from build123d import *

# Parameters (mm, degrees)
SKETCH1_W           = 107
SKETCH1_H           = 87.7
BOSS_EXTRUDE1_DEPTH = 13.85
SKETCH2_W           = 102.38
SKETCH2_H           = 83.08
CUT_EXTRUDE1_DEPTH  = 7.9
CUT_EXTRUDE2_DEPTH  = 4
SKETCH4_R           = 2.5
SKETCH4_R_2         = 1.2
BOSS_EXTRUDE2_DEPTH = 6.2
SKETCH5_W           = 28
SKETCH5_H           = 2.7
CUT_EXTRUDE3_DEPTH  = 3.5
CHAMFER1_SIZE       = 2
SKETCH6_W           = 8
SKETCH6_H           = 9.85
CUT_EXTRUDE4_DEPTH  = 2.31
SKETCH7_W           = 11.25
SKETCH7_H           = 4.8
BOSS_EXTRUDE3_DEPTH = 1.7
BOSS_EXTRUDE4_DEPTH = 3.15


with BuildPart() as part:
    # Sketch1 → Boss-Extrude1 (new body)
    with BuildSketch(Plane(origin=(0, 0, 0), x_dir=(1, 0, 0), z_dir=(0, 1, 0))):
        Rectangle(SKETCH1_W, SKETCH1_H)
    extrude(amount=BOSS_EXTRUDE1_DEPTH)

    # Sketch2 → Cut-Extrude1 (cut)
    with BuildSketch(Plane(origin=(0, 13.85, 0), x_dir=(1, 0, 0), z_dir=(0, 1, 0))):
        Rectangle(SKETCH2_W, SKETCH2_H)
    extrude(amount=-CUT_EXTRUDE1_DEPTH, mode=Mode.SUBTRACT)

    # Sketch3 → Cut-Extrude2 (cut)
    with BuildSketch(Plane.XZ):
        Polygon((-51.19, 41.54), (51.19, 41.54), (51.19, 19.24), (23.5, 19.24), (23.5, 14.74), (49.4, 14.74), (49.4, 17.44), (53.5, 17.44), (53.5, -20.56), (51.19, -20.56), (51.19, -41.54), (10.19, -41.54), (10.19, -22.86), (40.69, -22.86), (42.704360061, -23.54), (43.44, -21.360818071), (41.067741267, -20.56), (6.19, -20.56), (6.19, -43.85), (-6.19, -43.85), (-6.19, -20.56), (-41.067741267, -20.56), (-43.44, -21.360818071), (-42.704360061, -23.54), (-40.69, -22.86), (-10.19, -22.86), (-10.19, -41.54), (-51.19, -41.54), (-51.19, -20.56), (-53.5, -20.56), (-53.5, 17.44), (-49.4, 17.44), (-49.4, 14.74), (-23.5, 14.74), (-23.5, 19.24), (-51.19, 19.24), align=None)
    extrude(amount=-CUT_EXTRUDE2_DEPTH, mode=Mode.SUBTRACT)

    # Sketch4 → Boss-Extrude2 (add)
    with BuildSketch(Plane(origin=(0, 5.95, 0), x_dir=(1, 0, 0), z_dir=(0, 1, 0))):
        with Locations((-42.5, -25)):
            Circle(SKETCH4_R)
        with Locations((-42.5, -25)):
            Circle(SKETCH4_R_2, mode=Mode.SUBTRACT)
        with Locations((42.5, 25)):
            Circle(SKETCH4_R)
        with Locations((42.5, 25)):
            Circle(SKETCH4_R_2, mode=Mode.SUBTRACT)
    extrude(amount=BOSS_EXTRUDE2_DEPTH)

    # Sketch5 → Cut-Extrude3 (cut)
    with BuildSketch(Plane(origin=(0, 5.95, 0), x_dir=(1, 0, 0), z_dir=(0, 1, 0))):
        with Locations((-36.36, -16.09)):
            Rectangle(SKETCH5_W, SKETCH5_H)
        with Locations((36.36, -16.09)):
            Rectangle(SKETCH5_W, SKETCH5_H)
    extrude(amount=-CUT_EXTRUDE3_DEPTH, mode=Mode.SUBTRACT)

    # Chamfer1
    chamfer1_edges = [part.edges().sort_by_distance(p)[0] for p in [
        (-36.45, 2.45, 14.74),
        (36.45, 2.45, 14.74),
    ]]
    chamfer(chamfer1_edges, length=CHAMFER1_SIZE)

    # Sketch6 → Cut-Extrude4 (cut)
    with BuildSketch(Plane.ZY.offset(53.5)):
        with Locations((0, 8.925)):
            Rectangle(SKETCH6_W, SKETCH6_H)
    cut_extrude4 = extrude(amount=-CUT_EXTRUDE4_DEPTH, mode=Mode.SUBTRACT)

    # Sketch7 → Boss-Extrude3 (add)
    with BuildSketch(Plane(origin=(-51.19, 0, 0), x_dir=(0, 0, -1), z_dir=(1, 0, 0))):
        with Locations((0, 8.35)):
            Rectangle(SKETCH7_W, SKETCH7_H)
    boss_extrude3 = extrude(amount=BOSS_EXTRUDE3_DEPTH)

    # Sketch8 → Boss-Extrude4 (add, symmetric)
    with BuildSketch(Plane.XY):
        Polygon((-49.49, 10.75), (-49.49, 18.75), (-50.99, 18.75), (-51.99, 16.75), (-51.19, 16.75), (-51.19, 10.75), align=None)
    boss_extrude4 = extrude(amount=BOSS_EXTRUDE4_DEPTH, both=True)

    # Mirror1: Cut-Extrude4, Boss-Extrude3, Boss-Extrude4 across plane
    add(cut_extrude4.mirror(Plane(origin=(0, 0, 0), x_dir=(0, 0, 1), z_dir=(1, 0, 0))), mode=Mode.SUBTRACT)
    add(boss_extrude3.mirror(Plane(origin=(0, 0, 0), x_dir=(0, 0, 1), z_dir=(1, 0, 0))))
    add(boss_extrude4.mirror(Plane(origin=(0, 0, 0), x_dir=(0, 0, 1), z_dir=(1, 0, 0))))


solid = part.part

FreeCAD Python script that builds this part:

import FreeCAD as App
import Part
import Sketcher

V = App.Vector


def edges_at(feature, points):
    """Names of the edges that pass closest to the given points."""
    edges = feature.Shape.Edges
    near = lambda p: min(range(len(edges)), key=lambda i: edges[i].distToShape(Part.Vertex(*p))[0])
    return sorted({f"Edge{near(p) + 1}" for p in points})

doc = App.newDocument("Part")
params = doc.addObject("Spreadsheet::Sheet", "Params")
for row, (alias, value) in enumerate([
    ("sketch1_width", "107 mm"),
    ("sketch1_height", "87.7 mm"),
    ("pad1_length", "13.85 mm"),
    ("sketch2_width", "102.38 mm"),
    ("sketch2_height", "83.08 mm"),
    ("pocket1_length", "7.9 mm"),
    ("sketch3_width", "41 mm"),
    ("sketch3_height", "38 mm"),
    ("sketch3_width2", "25.9 mm"),
    ("sketch3_width3", "4.1 mm"),
    ("sketch3_width4", "30.5 mm"),
    ("pocket2_length", "4 mm"),
    ("sketch4_diameter", "5 mm"),
    ("sketch4_diameter2", "2.4 mm"),
    ("pad2_length", "6.2 mm"),
    ("sketch5_width", "28 mm"),
    ("sketch5_height", "2.7 mm"),
    ("pocket3_length", "3.5 mm"),
    ("chamfer_size", "2 mm"),
    ("sketch6_height", "8 mm"),
    ("sketch6_width", "9.85 mm"),
    ("pocket4_length", "2.31 mm"),
    ("sketch7_width", "4.8 mm"),
    ("sketch7_height", "11.25 mm"),
    ("pad3_length", "1.7 mm"),
    ("sketch8_height", "8 mm"),
    ("sketch8_height2", "6 mm"),
    ("sketch8_width", "1.5 mm"),
    ("sketch8_width2", "0.8 mm"),
    ("sketch8_width3", "1.7 mm"),
    ("pad4_length", "6.3 mm"),
], start=1):
    params.set(f"A{row}", alias)
    params.set(f"B{row}", "=" + value)
    params.setAlias(f"B{row}", alias)

body = doc.addObject("PartDesign::Body", "Body")

# Sketch on XZ plane
sketch1 = body.newObject("Sketcher::SketchObject", "Sketch")
sketch1.AttachmentSupport = (doc.getObject("XZ_Plane"), [""])
sketch1.MapMode = "FlatFace"
sketch1.addGeometry([
    Part.LineSegment(V(-53.5, -43.85, 0), V(-53.5, 43.85, 0)),
    Part.LineSegment(V(-53.5, 43.85, 0), V(53.5, 43.85, 0)),
    Part.LineSegment(V(53.5, 43.85, 0), V(53.5, -43.85, 0)),
    Part.LineSegment(V(53.5, -43.85, 0), V(-53.5, -43.85, 0)),
], False)
sketch1.addConstraint([
    Sketcher.Constraint("Coincident", 0, 2, 1, 1),
    Sketcher.Constraint("Coincident", 1, 2, 2, 1),
    Sketcher.Constraint("Coincident", 2, 2, 3, 1),
    Sketcher.Constraint("Coincident", 3, 2, 0, 1),
    Sketcher.Constraint("Vertical", 0),
    Sketcher.Constraint("Horizontal", 1),
    Sketcher.Constraint("Vertical", 2),
    Sketcher.Constraint("Horizontal", 3),
    Sketcher.Constraint("Symmetric", 0, 2, 2, 2, -1, 1),
    Sketcher.Constraint("DistanceX", 1, 1, 1, 2, 107.0),
    Sketcher.Constraint("DistanceY", 0, 1, 0, 2, 87.7),
])
sketch1.setExpression("Constraints[9]", "Params.sketch1_width")
sketch1.setExpression("Constraints[10]", "Params.sketch1_height")
pad1 = body.newObject("PartDesign::Pad", "Pad")
pad1.Profile = sketch1
pad1.setExpression("Length", "Params.pad1_length")
pad1.Reversed = True

# Sketch on XZ plane
sketch2 = body.newObject("Sketcher::SketchObject", "Sketch001")
sketch2.AttachmentSupport = (doc.getObject("XZ_Plane"), [""])
sketch2.MapMode = "FlatFace"
sketch2.AttachmentOffset = App.Placement(V(0, 0, -13.85), App.Rotation())
sketch2.addGeometry([
    Part.LineSegment(V(-51.19, -41.54, 0), V(-51.19, 41.54, 0)),
    Part.LineSegment(V(-51.19, 41.54, 0), V(51.19, 41.54, 0)),
    Part.LineSegment(V(51.19, 41.54, 0), V(51.19, -41.54, 0)),
    Part.LineSegment(V(51.19, -41.54, 0), V(-51.19, -41.54, 0)),
], False)
sketch2.addConstraint([
    Sketcher.Constraint("Coincident", 0, 2, 1, 1),
    Sketcher.Constraint("Coincident", 1, 2, 2, 1),
    Sketcher.Constraint("Coincident", 2, 2, 3, 1),
    Sketcher.Constraint("Coincident", 3, 2, 0, 1),
    Sketcher.Constraint("Vertical", 0),
    Sketcher.Constraint("Horizontal", 1),
    Sketcher.Constraint("Vertical", 2),
    Sketcher.Constraint("Horizontal", 3),
    Sketcher.Constraint("Symmetric", 0, 2, 2, 2, -1, 1),
    Sketcher.Constraint("DistanceX", 1, 1, 1, 2, 102.38),
    Sketcher.Constraint("DistanceY", 0, 1, 0, 2, 83.08),
])
sketch2.setExpression("Constraints[9]", "Params.sketch2_width")
sketch2.setExpression("Constraints[10]", "Params.sketch2_height")
pocket1 = body.newObject("PartDesign::Pocket", "Pocket")
pocket1.Profile = sketch2
pocket1.setExpression("Length", "Params.pocket1_length")
pocket1.Reversed = True

# Sketch on XZ plane
sketch3 = body.newObject("Sketcher::SketchObject", "Sketch002")
sketch3.AttachmentSupport = (doc.getObject("XZ_Plane"), [""])
sketch3.MapMode = "FlatFace"
sketch3.addGeometry([
    Part.LineSegment(V(51.19, 41.54, 0), V(-51.19, 41.54, 0)),  # 0
    Part.LineSegment(V(-51.19, 41.54, 0), V(-51.19, 19.24, 0)),  # 1
    Part.LineSegment(V(-51.19, 19.24, 0), V(-23.5, 19.24, 0)),  # 2
    Part.LineSegment(V(-23.5, 19.24, 0), V(-23.5, 14.74, 0)),  # 3
    Part.LineSegment(V(-23.5, 14.74, 0), V(-49.4, 14.74, 0)),  # 4
    Part.LineSegment(V(-49.4, 14.74, 0), V(-49.4, 17.44, 0)),  # 5
    Part.LineSegment(V(-49.4, 17.44, 0), V(-53.5, 17.44, 0)),  # 6
    Part.LineSegment(V(-53.5, 17.44, 0), V(-53.5, -20.56, 0)),  # 7
    Part.LineSegment(V(-53.5, -20.56, 0), V(-51.19, -20.56, 0)),  # 8
    Part.LineSegment(V(-51.19, -20.56, 0), V(-51.19, -41.54, 0)),  # 9
    Part.LineSegment(V(-51.19, -41.54, 0), V(-10.19, -41.54, 0)),  # 10
    Part.LineSegment(V(-10.19, -41.54, 0), V(-10.19, -22.86, 0)),  # 11
    Part.LineSegment(V(-10.19, -22.86, 0), V(-40.69, -22.86, 0)),  # 12
    Part.LineSegment(V(-40.69, -22.86, 0), V(-42.70436, -23.54, 0)),  # 13
    Part.LineSegment(V(-42.70436, -23.54, 0), V(-43.44, -21.360818, 0)),  # 14
    Part.LineSegment(V(-43.44, -21.360818, 0), V(-41.067741, -20.56, 0)),  # 15
    Part.LineSegment(V(-41.067741, -20.56, 0), V(-6.19, -20.56, 0)),  # 16
    Part.LineSegment(V(-6.19, -20.56, 0), V(-6.19, -43.85, 0)),  # 17
    Part.LineSegment(V(-6.19, -43.85, 0), V(6.19, -43.85, 0)),  # 18
    Part.LineSegment(V(6.19, -43.85, 0), V(6.19, -20.56, 0)),  # 19
    Part.LineSegment(V(6.19, -20.56, 0), V(41.067741, -20.56, 0)),  # 20
    Part.LineSegment(V(41.067741, -20.56, 0), V(43.44, -21.360818, 0)),  # 21
    Part.LineSegment(V(43.44, -21.360818, 0), V(42.70436, -23.54, 0)),  # 22
    Part.LineSegment(V(42.70436, -23.54, 0), V(40.69, -22.86, 0)),  # 23
    Part.LineSegment(V(40.69, -22.86, 0), V(10.19, -22.86, 0)),  # 24
    Part.LineSegment(V(10.19, -22.86, 0), V(10.19, -41.54, 0)),  # 25
    Part.LineSegment(V(10.19, -41.54, 0), V(51.19, -41.54, 0)),  # 26
    Part.LineSegment(V(51.19, -41.54, 0), V(51.19, -20.56, 0)),  # 27
    Part.LineSegment(V(51.19, -20.56, 0), V(53.5, -20.56, 0)),  # 28
    Part.LineSegment(V(53.5, -20.56, 0), V(53.5, 17.44, 0)),  # 29
    Part.LineSegment(V(53.5, 17.44, 0), V(49.4, 17.44, 0)),  # 30
    Part.LineSegment(V(49.4, 17.44, 0), V(49.4, 14.74, 0)),  # 31
    Part.LineSegment(V(49.4, 14.74, 0), V(23.5, 14.74, 0)),  # 32
    Part.LineSegment(V(23.5, 14.74, 0), V(23.5, 19.24, 0)),  # 33
    Part.LineSegment(V(23.5, 19.24, 0), V(51.19, 19.24, 0)),  # 34
    Part.LineSegment(V(51.19, 19.24, 0), V(51.19, 41.54, 0)),  # 35
], False)
sketch3.addConstraint([
    Sketcher.Constraint("Coincident", 0, 2, 1, 1),
    Sketcher.Constraint("Coincident", 1, 2, 2, 1),
    Sketcher.Constraint("Coincident", 2, 2, 3, 1),
    Sketcher.Constraint("Coincident", 3, 2, 4, 1),
    Sketcher.Constraint("Coincident", 4, 2, 5, 1),
    Sketcher.Constraint("Coincident", 5, 2, 6, 1),
    Sketcher.Constraint("Coincident", 6, 2, 7, 1),
    Sketcher.Constraint("Coincident", 7, 2, 8, 1),
    Sketcher.Constraint("Coincident", 8, 2, 9, 1),
    Sketcher.Constraint("Coincident", 9, 2, 10, 1),
    Sketcher.Constraint("Coincident", 10, 2, 11, 1),
    Sketcher.Constraint("Coincident", 11, 2, 12, 1),
    Sketcher.Constraint("Coincident", 12, 2, 13, 1),
    Sketcher.Constraint("Coincident", 13, 2, 14, 1),
    Sketcher.Constraint("Coincident", 14, 2, 15, 1),
    Sketcher.Constraint("Coincident", 15, 2, 16, 1),
    Sketcher.Constraint("Coincident", 16, 2, 17, 1),
    Sketcher.Constraint("Coincident", 17, 2, 18, 1),
    Sketcher.Constraint("Coincident", 18, 2, 19, 1),
    Sketcher.Constraint("Coincident", 19, 2, 20, 1),
    Sketcher.Constraint("Coincident", 20, 2, 21, 1),
    Sketcher.Constraint("Coincident", 21, 2, 22, 1),
    Sketcher.Constraint("Coincident", 22, 2, 23, 1),
    Sketcher.Constraint("Coincident", 23, 2, 24, 1),
    Sketcher.Constraint("Coincident", 24, 2, 25, 1),
    Sketcher.Constraint("Coincident", 25, 2, 26, 1),
    Sketcher.Constraint("Coincident", 26, 2, 27, 1),
    Sketcher.Constraint("Coincident", 27, 2, 28, 1),
    Sketcher.Constraint("Coincident", 28, 2, 29, 1),
    Sketcher.Constraint("Coincident", 29, 2, 30, 1),
    Sketcher.Constraint("Coincident", 30, 2, 31, 1),
    Sketcher.Constraint("Coincident", 31, 2, 32, 1),
    Sketcher.Constraint("Coincident", 32, 2, 33, 1),
    Sketcher.Constraint("Coincident", 33, 2, 34, 1),
    Sketcher.Constraint("Coincident", 34, 2, 35, 1),
    Sketcher.Constraint("Coincident", 35, 2, 0, 1),
    Sketcher.Constraint("Horizontal", 0),
    Sketcher.Constraint("Vertical", 1),
    Sketcher.Constraint("Horizontal", 2),
    Sketcher.Constraint("Vertical", 3),
    Sketcher.Constraint("Horizontal", 4),
    Sketcher.Constraint("Vertical", 5),
    Sketcher.Constraint("Horizontal", 6),
    Sketcher.Constraint("Vertical", 7),
    Sketcher.Constraint("Horizontal", 8),
    Sketcher.Constraint("Vertical", 9),
    Sketcher.Constraint("Horizontal", 10),
    Sketcher.Constraint("Vertical", 11),
    Sketcher.Constraint("Horizontal", 12),
    Sketcher.Constraint("Horizontal", 16),
    Sketcher.Constraint("Vertical", 17),
    Sketcher.Constraint("Horizontal", 18),
    Sketcher.Constraint("Vertical", 19),
    Sketcher.Constraint("Horizontal", 20),
    Sketcher.Constraint("Horizontal", 24),
    Sketcher.Constraint("Vertical", 25),
    Sketcher.Constraint("Horizontal", 26),
    Sketcher.Constraint("Vertical", 27),
    Sketcher.Constraint("Horizontal", 28),
    Sketcher.Constraint("Vertical", 29),
    Sketcher.Constraint("Horizontal", 30),
    Sketcher.Constraint("Vertical", 31),
    Sketcher.Constraint("Horizontal", 32),
    Sketcher.Constraint("Vertical", 33),
    Sketcher.Constraint("Horizontal", 34),
    Sketcher.Constraint("Vertical", 35),
    Sketcher.Constraint("Symmetric", 0, 2, 26, 2, -1, 1),
    Sketcher.Constraint("Symmetric", 9, 2, 35, 2, -1, 1),
    Sketcher.Constraint("Symmetric", 16, 2, 19, 2, -2),
    Sketcher.Constraint("Symmetric", 14, 2, 21, 2, -2),
    Sketcher.Constraint("Symmetric", 13, 2, 22, 2, -2),
    Sketcher.Constraint("Symmetric", 12, 2, 23, 2, -2),
    Sketcher.Constraint("Symmetric", 8, 2, 27, 2, -2),
    Sketcher.Constraint("Symmetric", 6, 2, 29, 2, -2),
    Sketcher.Constraint("Symmetric", 4, 2, 31, 2, -2),
    Sketcher.Constraint("Symmetric", 2, 2, 33, 2, -2),
    Sketcher.Constraint("Perpendicular", 13, 14),
    Sketcher.Constraint("Perpendicular", 14, 15),
    Sketcher.Constraint("Perpendicular", 21, 22),
    Sketcher.Constraint("Horizontal", 8, 2, 15, 2),
    Sketcher.Constraint("Equal", 12, 24),
    Sketcher.Constraint("DistanceX", 10, 1, 10, 2, 41.0),
    Sketcher.Constraint("DistanceY", 7, 2, 7, 1, 38.0),
    Sketcher.Constraint("DistanceX", 4, 2, 4, 1, 25.9),
    Sketcher.Constraint("DistanceX", 6, 2, 6, 1, 4.1),
    Sketcher.Constraint("DistanceX", 12, 2, 12, 1, 30.5),
    Sketcher.Constraint("DistanceY", 1, 2, 1, 1, 22.3),
    Sketcher.Constraint("DistanceY", 3, 2, 3, 1, 4.5),
    Sketcher.Constraint("DistanceY", 5, 1, 5, 2, 2.7),
    Sketcher.Constraint("DistanceY", 9, 2, 13, 2, 18.0),
    Sketcher.Constraint("DistanceX", 11, 2, 16, 2, 4.0),
    Sketcher.Constraint("Distance", 14, 2.3),
    Sketcher.Constraint("DistanceX", 0, 2, 0, 1, 102.38),
    Sketcher.Constraint("DistanceX", 2, 1, 2, 2, 27.69),
    Sketcher.Constraint("DistanceY", 9, 2, 9, 1, 20.98),
    Sketcher.Constraint("DistanceY", 11, 1, 11, 2, 18.68),
    Sketcher.Constraint("DistanceY", 17, 2, 17, 1, 23.29),
    Sketcher.Constraint("DistanceX", 14, 2, -1, 1, 43.44),
])
sketch3.setExpression("Constraints[81]", "Params.sketch3_width")
sketch3.setExpression("Constraints[82]", "Params.sketch3_height")
sketch3.setExpression("Constraints[83]", "Params.sketch3_width2")
sketch3.setExpression("Constraints[84]", "Params.sketch3_width3")
sketch3.setExpression("Constraints[85]", "Params.sketch3_width4")
pocket2 = body.newObject("PartDesign::Pocket", "Pocket001")
pocket2.Profile = sketch3
pocket2.setExpression("Length", "Params.pocket2_length")

# Sketch on XZ plane
sketch4 = body.newObject("Sketcher::SketchObject", "Sketch003")
sketch4.AttachmentSupport = (doc.getObject("XZ_Plane"), [""])
sketch4.MapMode = "FlatFace"
sketch4.AttachmentOffset = App.Placement(V(0, 0, -5.95), App.Rotation())
sketch4.addGeometry([
    Part.Circle(V(-42.5, 25, 0), V(0, 0, 1), 2.5),
    Part.Circle(V(-42.5, 25, 0), V(0, 0, 1), 1.2),
    Part.Circle(V(42.5, -25, 0), V(0, 0, 1), 2.5),
    Part.Circle(V(42.5, -25, 0), V(0, 0, 1), 1.2),
], False)
sketch4.addConstraint([
    Sketcher.Constraint("Coincident", 1, 3, 0, 3),
    Sketcher.Constraint("Coincident", 3, 3, 2, 3),
    Sketcher.Constraint("Equal", 0, 2),
    Sketcher.Constraint("Equal", 1, 3),
    Sketcher.Constraint("Symmetric", 0, 3, 2, 3, -1, 1),
    Sketcher.Constraint("Diameter", 0, 5.0),
    Sketcher.Constraint("Diameter", 1, 2.4),
    Sketcher.Constraint("DistanceY", -1, 1, 0, 3, 25.0),
    Sketcher.Constraint("DistanceX", 0, 3, 2, 3, 85.0),
])
sketch4.setExpression("Constraints[5]", "Params.sketch4_diameter")
sketch4.setExpression("Constraints[6]", "Params.sketch4_diameter2")
pad2 = body.newObject("PartDesign::Pad", "Pad001")
pad2.Profile = sketch4
pad2.setExpression("Length", "Params.pad2_length")
pad2.Reversed = True

# Sketch on XZ plane
sketch5 = body.newObject("Sketcher::SketchObject", "Sketch004")
sketch5.AttachmentSupport = (doc.getObject("XZ_Plane"), [""])
sketch5.MapMode = "FlatFace"
sketch5.AttachmentOffset = App.Placement(V(0, 0, -5.95), App.Rotation())
sketch5.addGeometry([
    Part.LineSegment(V(-50.36, 14.74, 0), V(-50.36, 17.44, 0)),  # 0
    Part.LineSegment(V(-50.36, 17.44, 0), V(-22.36, 17.44, 0)),  # 1
    Part.LineSegment(V(-22.36, 17.44, 0), V(-22.36, 14.74, 0)),  # 2
    Part.LineSegment(V(-22.36, 14.74, 0), V(-50.36, 14.74, 0)),  # 3
    Part.LineSegment(V(22.36, 14.74, 0), V(22.36, 17.44, 0)),  # 4
    Part.LineSegment(V(22.36, 17.44, 0), V(50.36, 17.44, 0)),  # 5
    Part.LineSegment(V(50.36, 17.44, 0), V(50.36, 14.74, 0)),  # 6
    Part.LineSegment(V(50.36, 14.74, 0), V(22.36, 14.74, 0)),  # 7
], False)
sketch5.addConstraint([
    Sketcher.Constraint("Coincident", 0, 2, 1, 1),
    Sketcher.Constraint("Coincident", 1, 2, 2, 1),
    Sketcher.Constraint("Coincident", 2, 2, 3, 1),
    Sketcher.Constraint("Coincident", 3, 2, 0, 1),
    Sketcher.Constraint("Coincident", 4, 2, 5, 1),
    Sketcher.Constraint("Coincident", 5, 2, 6, 1),
    Sketcher.Constraint("Coincident", 6, 2, 7, 1),
    Sketcher.Constraint("Coincident", 7, 2, 4, 1),
    Sketcher.Constraint("Vertical", 0),
    Sketcher.Constraint("Horizontal", 1),
    Sketcher.Constraint("Vertical", 2),
    Sketcher.Constraint("Horizontal", 3),
    Sketcher.Constraint("Vertical", 4),
    Sketcher.Constraint("Horizontal", 5),
    Sketcher.Constraint("Vertical", 6),
    Sketcher.Constraint("Horizontal", 7),
    Sketcher.Constraint("Symmetric", 1, 2, 4, 2, -2),
    Sketcher.Constraint("Symmetric", 3, 2, 6, 2, -2),
    Sketcher.Constraint("DistanceX", 1, 1, 1, 2, 28.0),
    Sketcher.Constraint("DistanceY", 0, 1, 0, 2, 2.7),
    Sketcher.Constraint("DistanceX", 0, 2, -1, 1, 50.36),
    Sketcher.Constraint("DistanceY", -1, 1, 0, 2, 17.44),
])
sketch5.setExpression("Constraints[18]", "Params.sketch5_width")
sketch5.setExpression("Constraints[19]", "Params.sketch5_height")
pocket3 = body.newObject("PartDesign::Pocket", "Pocket002")
pocket3.Profile = sketch5
pocket3.setExpression("Length", "Params.pocket3_length")
pocket3.Reversed = True
doc.recompute()

chamfer = body.newObject("PartDesign::Chamfer", "Chamfer")
chamfer.Base = (pocket3, edges_at(pocket3, [(-36.45, 2.45, 14.74), (36.45, 2.45, 14.74)]))
chamfer.setExpression("Size", "Params.chamfer_size")

# Sketch on YZ plane
sketch6 = body.newObject("Sketcher::SketchObject", "Sketch005")
sketch6.AttachmentSupport = (doc.getObject("YZ_Plane"), [""])
sketch6.MapMode = "FlatFace"
sketch6.AttachmentOffset = App.Placement(V(0, 0, -53.5), App.Rotation())
sketch6.addGeometry([
    Part.LineSegment(V(13.85, -4, 0), V(4, -4, 0)),
    Part.LineSegment(V(4, -4, 0), V(4, 4, 0)),
    Part.LineSegment(V(4, 4, 0), V(13.85, 4, 0)),
    Part.LineSegment(V(13.85, 4, 0), V(13.85, -4, 0)),
], False)
sketch6.addConstraint([
    Sketcher.Constraint("Coincident", 0, 2, 1, 1),
    Sketcher.Constraint("Coincident", 1, 2, 2, 1),
    Sketcher.Constraint("Coincident", 2, 2, 3, 1),
    Sketcher.Constraint("Coincident", 3, 2, 0, 1),
    Sketcher.Constraint("Horizontal", 0),
    Sketcher.Constraint("Vertical", 1),
    Sketcher.Constraint("Horizontal", 2),
    Sketcher.Constraint("Vertical", 3),
    Sketcher.Constraint("DistanceY", 1, 1, 1, 2, 8.0),
    Sketcher.Constraint("DistanceX", -1, 1, 0, 2, 4.0),
    Sketcher.Constraint("DistanceY", 0, 2, -1, 1, 4.0),
    Sketcher.Constraint("DistanceX", 0, 2, 0, 1, 9.85),
])
sketch6.setExpression("Constraints[8]", "Params.sketch6_height")
sketch6.setExpression("Constraints[11]", "Params.sketch6_width")
pocket4 = body.newObject("PartDesign::Pocket", "Pocket003")
pocket4.Profile = sketch6
pocket4.setExpression("Length", "Params.pocket4_length")
pocket4.Reversed = True

# Sketch on YZ plane
sketch7 = body.newObject("Sketcher::SketchObject", "Sketch006")
sketch7.AttachmentSupport = (doc.getObject("YZ_Plane"), [""])
sketch7.MapMode = "FlatFace"
sketch7.AttachmentOffset = App.Placement(V(0, 0, -51.19), App.Rotation())
sketch7.addGeometry([
    Part.LineSegment(V(10.75, 5.625, 0), V(5.95, 5.625, 0)),
    Part.LineSegment(V(5.95, 5.625, 0), V(5.95, -5.625, 0)),
    Part.LineSegment(V(5.95, -5.625, 0), V(10.75, -5.625, 0)),
    Part.LineSegment(V(10.75, -5.625, 0), V(10.75, 5.625, 0)),
], False)
sketch7.addConstraint([
    Sketcher.Constraint("Coincident", 0, 2, 1, 1),
    Sketcher.Constraint("Coincident", 1, 2, 2, 1),
    Sketcher.Constraint("Coincident", 2, 2, 3, 1),
    Sketcher.Constraint("Coincident", 3, 2, 0, 1),
    Sketcher.Constraint("Horizontal", 0),
    Sketcher.Constraint("Vertical", 1),
    Sketcher.Constraint("Horizontal", 2),
    Sketcher.Constraint("Vertical", 3),
    Sketcher.Constraint("DistanceX", 0, 2, 0, 1, 4.8),
    Sketcher.Constraint("DistanceY", 1, 2, 1, 1, 11.25),
    Sketcher.Constraint("DistanceX", -1, 1, 0, 2, 5.95),
    Sketcher.Constraint("DistanceY", -1, 1, 0, 2, 5.625),
])
sketch7.setExpression("Constraints[8]", "Params.sketch7_width")
sketch7.setExpression("Constraints[9]", "Params.sketch7_height")
pad3 = body.newObject("PartDesign::Pad", "Pad002")
pad3.Profile = sketch7
pad3.setExpression("Length", "Params.pad3_length")

# Sketch on XY plane
sketch8 = body.newObject("Sketcher::SketchObject", "Sketch007")
sketch8.AttachmentSupport = (doc.getObject("XY_Plane"), [""])
sketch8.MapMode = "FlatFace"
sketch8.addGeometry([
    Part.LineSegment(V(-49.49, 10.75, 0), V(-49.49, 18.75, 0)),  # 0
    Part.LineSegment(V(-49.49, 18.75, 0), V(-50.99, 18.75, 0)),  # 1
    Part.LineSegment(V(-50.99, 18.75, 0), V(-51.99, 16.75, 0)),  # 2
    Part.LineSegment(V(-51.99, 16.75, 0), V(-51.19, 16.75, 0)),  # 3
    Part.LineSegment(V(-51.19, 16.75, 0), V(-51.19, 10.75, 0)),  # 4
    Part.LineSegment(V(-51.19, 10.75, 0), V(-49.49, 10.75, 0)),  # 5
], False)
sketch8.addConstraint([
    Sketcher.Constraint("Coincident", 0, 2, 1, 1),
    Sketcher.Constraint("Coincident", 1, 2, 2, 1),
    Sketcher.Constraint("Coincident", 2, 2, 3, 1),
    Sketcher.Constraint("Coincident", 3, 2, 4, 1),
    Sketcher.Constraint("Coincident", 4, 2, 5, 1),
    Sketcher.Constraint("Coincident", 5, 2, 0, 1),
    Sketcher.Constraint("Vertical", 0),
    Sketcher.Constraint("Horizontal", 1),
    Sketcher.Constraint("Horizontal", 3),
    Sketcher.Constraint("Vertical", 4),
    Sketcher.Constraint("Horizontal", 5),
    Sketcher.Constraint("DistanceY", 0, 1, 0, 2, 8.0),
    Sketcher.Constraint("DistanceY", 4, 2, 4, 1, 6.0),
    Sketcher.Constraint("DistanceX", 1, 2, 1, 1, 1.5),
    Sketcher.Constraint("DistanceX", 3, 1, 3, 2, 0.8),
    Sketcher.Constraint("DistanceX", 5, 1, 5, 2, 1.7),
    Sketcher.Constraint("DistanceX", 0, 2, -1, 1, 49.49),
    Sketcher.Constraint("DistanceY", -1, 1, 0, 2, 18.75),
])
sketch8.setExpression("Constraints[11]", "Params.sketch8_height")
sketch8.setExpression("Constraints[12]", "Params.sketch8_height2")
sketch8.setExpression("Constraints[13]", "Params.sketch8_width")
sketch8.setExpression("Constraints[14]", "Params.sketch8_width2")
sketch8.setExpression("Constraints[15]", "Params.sketch8_width3")
pad4 = body.newObject("PartDesign::Pad", "Pad003")
pad4.Profile = sketch8
pad4.setExpression("Length", "Params.pad4_length")
pad4.Midplane = True
doc.recompute()

mirrored = body.newObject("PartDesign::Mirrored", "Mirrored")
mirrored.Originals = [pocket4, pad3, pad4]
mirrored.MirrorPlane = (doc.getObject("YZ_Plane"), [""])
body.Tip = mirrored

doc.recompute()
